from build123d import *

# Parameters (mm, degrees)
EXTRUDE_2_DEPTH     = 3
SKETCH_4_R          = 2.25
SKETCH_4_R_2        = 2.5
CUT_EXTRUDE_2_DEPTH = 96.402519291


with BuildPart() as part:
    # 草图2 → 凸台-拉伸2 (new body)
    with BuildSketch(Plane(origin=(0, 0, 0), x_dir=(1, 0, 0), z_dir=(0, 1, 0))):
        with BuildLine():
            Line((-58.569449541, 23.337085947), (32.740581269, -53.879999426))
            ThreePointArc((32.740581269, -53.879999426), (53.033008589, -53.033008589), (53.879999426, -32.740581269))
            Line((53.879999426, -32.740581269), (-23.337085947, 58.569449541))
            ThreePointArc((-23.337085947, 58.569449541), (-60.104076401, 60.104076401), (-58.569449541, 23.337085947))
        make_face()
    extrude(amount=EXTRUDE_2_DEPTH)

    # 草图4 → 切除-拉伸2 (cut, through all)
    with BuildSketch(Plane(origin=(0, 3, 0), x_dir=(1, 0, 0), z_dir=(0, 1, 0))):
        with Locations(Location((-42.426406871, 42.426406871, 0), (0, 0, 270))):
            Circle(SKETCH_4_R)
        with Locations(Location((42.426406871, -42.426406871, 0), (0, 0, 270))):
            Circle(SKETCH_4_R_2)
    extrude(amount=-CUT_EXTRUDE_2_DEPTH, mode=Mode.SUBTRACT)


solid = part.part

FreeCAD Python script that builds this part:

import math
import FreeCAD as App
import Part
import Sketcher

V = App.Vector

doc = App.newDocument("Part")
params = doc.addObject("Spreadsheet::Sheet", "Params")
for row, (alias, value) in enumerate([
    ("sketch1_radius", "15 mm"),
    ("sketch1_radius2", "25 mm"),
    ("pad1_length", "3 mm"),
    ("sketch2_diameter", "5 mm"),
    ("sketch2_diameter2", "4.5 mm"),
], start=1):
    params.set(f"A{row}", alias)
    params.set(f"B{row}", "=" + value)
    params.setAlias(f"B{row}", alias)

body = doc.addObject("PartDesign::Body", "Body")

# Sketch on XZ plane
sketch1 = body.newObject("Sketcher::SketchObject", "Sketch")
sketch1.AttachmentSupport = (doc.getObject("XZ_Plane"), [""])
sketch1.MapMode = "FlatFace"
sketch1.addGeometry(Part.LineSegment(V(-59, -23, 0), V(33, 54, 0)), False)
sketch1.addGeometry(Part.ArcOfCircle(Part.Circle(V(42, 42, 0), V(0, 0, 1), 15), math.radians(-40), math.radians(130)), False)
sketch1.addGeometry(Part.LineSegment(V(54, 33, 0), V(-23, -59, 0)), False)
sketch1.addGeometry(Part.ArcOfCircle(Part.Circle(V(-42, -42, 0), V(0, 0, 1), 25), math.radians(130), math.radians(320)), False)
sketch1.addConstraint(Sketcher.Constraint("Tangent", 0, 2, 1, 2))
sketch1.addConstraint(Sketcher.Constraint("Tangent", 1, 1, 2, 1))
sketch1.addConstraint(Sketcher.Constraint("Tangent", 2, 2, 3, 2))
sketch1.addConstraint(Sketcher.Constraint("Tangent", 3, 1, 0, 1))
sketch1.addConstraint(Sketcher.Constraint("Symmetric", 1, 3, 3, 3, -1, 1))
sketch1.addConstraint(Sketcher.Constraint("Radius", 1, 15.0))
sketch1.addConstraint(Sketcher.Constraint("Radius", 3, 25.0))
sketch1.addConstraint(Sketcher.Constraint("DistanceY", -1, 1, 0, 2, 53.879999))
sketch1.addConstraint(Sketcher.Constraint("DistanceX", -1, 1, 1, 1, 53.879999))
sketch1.setExpression("Constraints[5]", "Params.sketch1_radius")
sketch1.setExpression("Constraints[6]", "Params.sketch1_radius2")
pad1 = body.newObject("PartDesign::Pad", "Pad")
pad1.Profile = sketch1
pad1.setExpression("Length", "Params.pad1_length")
pad1.Reversed = True

# Sketch on XZ plane
sketch2 = body.newObject("Sketcher::SketchObject", "Sketch001")
sketch2.AttachmentSupport = (doc.getObject("XZ_Plane"), [""])
sketch2.MapMode = "FlatFace"
sketch2.AttachmentOffset = App.Placement(V(0, 0, -3), App.Rotation())
sketch2.addGeometry(Part.Circle(V(-42.4, -42.4, 0), V(0, 0, 1), 2.2), False)
sketch2.addGeometry(Part.Circle(V(42.4, 42.4, 0), V(0, 0, 1), 2.5), False)
sketch2.addConstraint(Sketcher.Constraint("Symmetric", 0, 3, 1, 3, -1, 1))
sketch2.addConstraint(Sketcher.Constraint("Diameter", 1, 5.0))
sketch2.addConstraint(Sketcher.Constraint("Diameter", 0, 4.5))
sketch2.addConstraint(Sketcher.Constraint("DistanceX", 0, 3, -1, 1, 42.426407))
sketch2.addConstraint(Sketcher.Constraint("DistanceY", 0, 3, -1, 1, 42.426407))
sketch2.setExpression("Constraints[1]", "Params.sketch2_diameter")
sketch2.setExpression("Constraints[2]", "Params.sketch2_diameter2")
pocket1 = body.newObject("PartDesign::Pocket", "Pocket")
pocket1.Profile = sketch2
pocket1.Type = "ThroughAll"
pocket1.Reversed = True

doc.recompute()
